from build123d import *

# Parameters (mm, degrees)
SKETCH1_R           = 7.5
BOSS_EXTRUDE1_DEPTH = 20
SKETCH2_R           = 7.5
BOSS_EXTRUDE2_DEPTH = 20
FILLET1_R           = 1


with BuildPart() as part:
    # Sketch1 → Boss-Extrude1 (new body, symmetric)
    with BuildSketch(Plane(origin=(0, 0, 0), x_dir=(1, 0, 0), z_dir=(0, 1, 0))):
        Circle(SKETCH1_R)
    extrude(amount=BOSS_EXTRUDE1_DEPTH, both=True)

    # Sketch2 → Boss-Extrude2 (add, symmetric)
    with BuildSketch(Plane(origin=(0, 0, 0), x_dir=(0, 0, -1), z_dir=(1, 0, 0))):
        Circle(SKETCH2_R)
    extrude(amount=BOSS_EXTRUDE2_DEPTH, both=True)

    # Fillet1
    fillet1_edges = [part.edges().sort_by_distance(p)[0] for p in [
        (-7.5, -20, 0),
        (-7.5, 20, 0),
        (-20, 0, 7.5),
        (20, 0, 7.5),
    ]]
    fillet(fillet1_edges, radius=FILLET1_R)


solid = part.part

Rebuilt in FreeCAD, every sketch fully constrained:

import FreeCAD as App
import Part
import Sketcher
from FreeCAD import Vector
Q = App.Units.Quantity


def edges_at(feature, points):
    """Names of the edges that pass closest to the given points."""
    edges = feature.Shape.Edges
    near = lambda p: min(range(len(edges)), key=lambda i: edges[i].distToShape(Part.Vertex(*p))[0])
    return sorted({f"Edge{near(p) + 1}" for p in points})

doc = App.newDocument("Part")
body = doc.addObject("PartDesign::Body", "Body")

# Sketch on XZ plane
sketch1 = body.newObject("Sketcher::SketchObject", "Sketch")
sketch1.AttachmentSupport = (doc.getObject("XZ_Plane"), [""])
sketch1.MapMode = "FlatFace"
sketch1.addGeometry(Part.Circle(Vector(0, 0, 0), Vector(0, 0, 1), 8), False)
sketch1.addConstraint(Sketcher.Constraint("Coincident", 0, 3, -1, 1))
sketch1.addConstraint(Sketcher.Constraint("Diameter", 0, Q("15 mm")))
pad1 = body.newObject("PartDesign::Pad", "Pad")
pad1.Profile = sketch1
pad1.Length = 40
pad1.Midplane = True

# Sketch on YZ plane
sketch2 = body.newObject("Sketcher::SketchObject", "Sketch001")
sketch2.AttachmentSupport = (doc.getObject("YZ_Plane"), [""])
sketch2.MapMode = "FlatFace"
sketch2.addGeometry(Part.Circle(Vector(0, 0, 0), Vector(0, 0, 1), 8), False)
sketch2.addConstraint(Sketcher.Constraint("Coincident", 0, 3, -1, 1))
sketch2.addConstraint(Sketcher.Constraint("Diameter", 0, Q("15 mm")))
pad2 = body.newObject("PartDesign::Pad", "Pad001")
pad2.Profile = sketch2
pad2.Length = 40
pad2.Midplane = True
doc.recompute()

fillet = body.newObject("PartDesign::Fillet", "Fillet")
fillet.Base = (pad2, edges_at(pad2, [
    (-7.5, -20, 0),
    (-7.5, 20, 0),
    (-20, 0, 7.5),
    (20, 0, 7.5),
]))
fillet.Radius = 1

doc.recompute()
